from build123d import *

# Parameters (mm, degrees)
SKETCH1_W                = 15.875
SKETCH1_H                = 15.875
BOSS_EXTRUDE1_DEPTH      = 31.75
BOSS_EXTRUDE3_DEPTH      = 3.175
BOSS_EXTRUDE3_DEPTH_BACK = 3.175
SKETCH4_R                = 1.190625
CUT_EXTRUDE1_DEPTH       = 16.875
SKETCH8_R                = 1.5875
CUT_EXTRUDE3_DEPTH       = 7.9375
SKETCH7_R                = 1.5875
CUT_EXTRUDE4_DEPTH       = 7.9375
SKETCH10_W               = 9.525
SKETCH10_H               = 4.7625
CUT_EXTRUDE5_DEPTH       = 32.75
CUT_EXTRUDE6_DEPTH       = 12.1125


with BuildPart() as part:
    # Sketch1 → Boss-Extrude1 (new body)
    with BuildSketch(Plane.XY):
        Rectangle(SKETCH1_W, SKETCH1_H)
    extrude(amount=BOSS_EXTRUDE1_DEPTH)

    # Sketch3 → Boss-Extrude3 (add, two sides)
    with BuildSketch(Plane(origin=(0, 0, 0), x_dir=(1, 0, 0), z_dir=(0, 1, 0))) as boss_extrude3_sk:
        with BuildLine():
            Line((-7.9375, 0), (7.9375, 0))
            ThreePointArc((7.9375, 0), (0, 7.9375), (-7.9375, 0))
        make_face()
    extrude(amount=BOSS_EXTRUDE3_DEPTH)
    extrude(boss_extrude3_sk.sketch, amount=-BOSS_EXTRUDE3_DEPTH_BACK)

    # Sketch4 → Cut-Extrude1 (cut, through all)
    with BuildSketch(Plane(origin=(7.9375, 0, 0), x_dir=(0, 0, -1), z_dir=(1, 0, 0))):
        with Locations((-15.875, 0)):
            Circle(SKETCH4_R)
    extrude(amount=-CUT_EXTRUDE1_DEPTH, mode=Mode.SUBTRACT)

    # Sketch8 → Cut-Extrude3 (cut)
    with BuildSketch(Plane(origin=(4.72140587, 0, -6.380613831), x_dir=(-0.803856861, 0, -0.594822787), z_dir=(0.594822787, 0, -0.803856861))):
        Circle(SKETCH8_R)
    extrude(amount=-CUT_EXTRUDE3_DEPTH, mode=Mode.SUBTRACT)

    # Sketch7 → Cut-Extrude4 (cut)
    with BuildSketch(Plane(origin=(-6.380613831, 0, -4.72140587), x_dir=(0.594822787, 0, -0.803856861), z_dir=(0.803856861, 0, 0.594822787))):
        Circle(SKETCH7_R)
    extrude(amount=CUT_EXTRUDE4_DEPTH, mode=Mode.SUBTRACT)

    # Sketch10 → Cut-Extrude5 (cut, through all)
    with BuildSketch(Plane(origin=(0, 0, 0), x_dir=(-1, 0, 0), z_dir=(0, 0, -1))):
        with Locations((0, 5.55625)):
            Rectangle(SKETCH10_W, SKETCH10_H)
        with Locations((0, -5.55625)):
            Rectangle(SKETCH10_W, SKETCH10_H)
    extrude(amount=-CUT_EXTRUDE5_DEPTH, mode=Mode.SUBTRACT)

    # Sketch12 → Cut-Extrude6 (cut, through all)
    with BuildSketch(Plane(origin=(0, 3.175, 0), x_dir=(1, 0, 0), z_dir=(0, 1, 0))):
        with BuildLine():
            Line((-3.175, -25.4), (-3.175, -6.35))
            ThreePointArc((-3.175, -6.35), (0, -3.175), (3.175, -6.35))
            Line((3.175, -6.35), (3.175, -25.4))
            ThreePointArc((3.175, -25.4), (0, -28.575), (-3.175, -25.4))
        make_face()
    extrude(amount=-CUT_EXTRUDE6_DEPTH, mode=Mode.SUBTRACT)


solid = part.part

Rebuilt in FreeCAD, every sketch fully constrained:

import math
import FreeCAD as App
import Part
import Sketcher

V = App.Vector
Q = App.Units.Quantity


def add_polygon(sketch, points):
    """Adds a closed chain of lines whose ends are joined by coincident constraints."""
    first, n = sketch.GeometryCount, len(points)
    for a, b in zip(points, points[1:] + points[:1]):
        sketch.addGeometry(Part.LineSegment(App.Vector(*a, 0), App.Vector(*b, 0)), False)
    for i in range(n):
        sketch.addConstraint(Sketcher.Constraint("Coincident", first + i, 2, first + (i + 1) % n, 1))

doc = App.newDocument("Part")
body = doc.addObject("PartDesign::Body", "Body")

sketch1 = doc.addObject("Sketcher::SketchObject", "Sketch")
body.addObject(sketch1)
sketch1.AttachmentSupport = (doc.XY_Plane, [""])
sketch1.MapMode = "FlatFace"
add_polygon(sketch1, [(-8, 8), (-8, -8), (8, -8), (8, 8)])
sketch1.addConstraint([
    Sketcher.Constraint("Vertical", 0),
    Sketcher.Constraint("Horizontal", 1),
    Sketcher.Constraint("Vertical", 2),
    Sketcher.Constraint("Horizontal", 3),
    Sketcher.Constraint("Symmetric", 0, 2, 2, 2, -1, 1),
    Sketcher.Constraint("Equal", 3, 0),
    Sketcher.Constraint("DistanceX", 1, 1, 1, 2, Q("0.625 in")),
])
pad1 = doc.addObject("PartDesign::Pad", "Pad")
body.addObject(pad1)
pad1.Profile = sketch1
pad1.Length = Q("1.25 in")

sketch2 = doc.addObject("Sketcher::SketchObject", "Sketch001")
body.addObject(sketch2)
sketch2.AttachmentSupport = (doc.XZ_Plane, [""])
sketch2.MapMode = "FlatFace"
sketch2.addGeometry([
    Part.LineSegment(V(-8, 0, 0), V(8, 0, 0)),
    Part.ArcOfCircle(Part.Circle(V(0, 0, 0), V(0, 0, 1), 8), math.radians(180), math.radians(360)),
], False)
sketch2.addConstraint([
    Sketcher.Constraint("Coincident", 0, 1, 1, 1),
    Sketcher.Constraint("Coincident", 1, 2, 0, 2),
    Sketcher.Constraint("Horizontal", 0),
    Sketcher.Constraint("Coincident", 1, 3, -1, 1),
    Sketcher.Constraint("PointOnObject", 0, 1, -1),
    Sketcher.Constraint("Radius", 1, Q("0.3125 in")),
])
pad2 = doc.addObject("PartDesign::Pad", "Pad001")
body.addObject(pad2)
pad2.Profile = sketch2
pad2.Type = "TwoLengths"
pad2.Length = Q("0.125 in")
pad2.Length2 = Q("0.125 in")
pad2.Reversed = True

sketch3 = doc.addObject("Sketcher::SketchObject", "Sketch002")
body.addObject(sketch3)
sketch3.AttachmentSupport = (doc.YZ_Plane, [""])
sketch3.MapMode = "FlatFace"
sketch3.AttachmentOffset = App.Placement(V(0, 0, 0.3125 * 25.4), App.Rotation())
sketch3.addGeometry(Part.Circle(V(0, 15.9, 0), V(0, 0, 1), 1.2), False)
sketch3.addConstraint([
    Sketcher.Constraint("PointOnObject", 0, 3, -2),
    Sketcher.Constraint("Diameter", 0, Q("0.09375 in")),
    Sketcher.Constraint("DistanceY", -1, 1, 0, 3, Q("0.625 in")),
])
pocket1 = doc.addObject("PartDesign::Pocket", "Pocket")
body.addObject(pocket1)
pocket1.Profile = sketch3
pocket1.Type = "ThroughAll"

sketch4 = doc.addObject("Sketcher::SketchObject", "Sketch003")
body.addObject(sketch4)
sketch4.Placement = App.Placement(V(4.721406, 0, -6.380614), App.Rotation(V(-0.803856861, 0, -0.594822787), V(0, 1.000000001, 0), V(0.594822787, 0, -0.803856861), "ZXY"))
sketch4.addGeometry(Part.Circle(V(0, 0, 0), V(0, 0, 1), 1.6), False)
sketch4.addConstraint([
    Sketcher.Constraint("Coincident", 0, 3, -1, 1),
    Sketcher.Constraint("Diameter", 0, Q("0.125 in")),
])
pocket2 = doc.addObject("PartDesign::Pocket", "Pocket001")
body.addObject(pocket2)
pocket2.Profile = sketch4
pocket2.Length = Q("0.3125 in")

sketch5 = doc.addObject("Sketcher::SketchObject", "Sketch004")
body.addObject(sketch5)
sketch5.Placement = App.Placement(V(-6.380614, 0, -4.721406), App.Rotation(V(0.594822787, 0, -0.803856861), V(0, 1.000000001, 0), V(0.803856861, 0, 0.594822787), "ZXY"))
sketch5.addGeometry(Part.Circle(V(0, 0, 0), V(0, 0, 1), 1.6), False)
sketch5.addConstraint([
    Sketcher.Constraint("Coincident", 0, 3, -1, 1),
    Sketcher.Constraint("Diameter", 0, Q("0.125 in")),
])
pocket3 = doc.addObject("PartDesign::Pocket", "Pocket002")
body.addObject(pocket3)
pocket3.Profile = sketch5
pocket3.Length = Q("0.3125 in")
pocket3.Reversed = True

sketch6 = doc.addObject("Sketcher::SketchObject", "Sketch005")
body.addObject(sketch6)
sketch6.AttachmentSupport = (doc.XY_Plane, [""])
sketch6.MapMode = "FlatFace"
add_polygon(sketch6, [(4.8, 7.9), (4.8, 3.2), (-4.8, 3.2), (-4.8, 7.9)])
add_polygon(sketch6, [(4.8, -3.2), (4.8, -7.9), (-4.8, -7.9), (-4.8, -3.2)])
sketch6.addConstraint([
    Sketcher.Constraint("Vertical", 0),
    Sketcher.Constraint("Horizontal", 1),
    Sketcher.Constraint("Vertical", 2),
    Sketcher.Constraint("Horizontal", 3),
    Sketcher.Constraint("Vertical", 4),
    Sketcher.Constraint("Horizontal", 5),
    Sketcher.Constraint("Vertical", 6),
    Sketcher.Constraint("Horizontal", 7),
    Sketcher.Constraint("Symmetric", 2, 2, 4, 2, -1, 1),
    Sketcher.Constraint("Symmetric", 0, 2, 6, 2, -1, 1),
    Sketcher.Constraint("Vertical", 3, 2, 4, 2),
    Sketcher.Constraint("DistanceX", 1, 2, 1, 1, Q("0.375 in")),
    Sketcher.Constraint("DistanceY", 0, 2, 0, 1, Q("0.1875 in")),
    Sketcher.Constraint("DistanceY", 6, 2, 1, 2, Q("0.25 in")),
])
pocket4 = doc.addObject("PartDesign::Pocket", "Pocket003")
body.addObject(pocket4)
pocket4.Profile = sketch6
pocket4.Type = "ThroughAll"
pocket4.Reversed = True

sketch7 = doc.addObject("Sketcher::SketchObject", "Sketch006")
body.addObject(sketch7)
sketch7.AttachmentSupport = (doc.XZ_Plane, [""])
sketch7.MapMode = "FlatFace"
sketch7.AttachmentOffset = App.Placement(V(0, 0, -0.125 * 25.4), App.Rotation())
sketch7.addGeometry([
    Part.LineSegment(V(-3.2, 6.3, 0), V(-3.2, 25.4, 0)),
    Part.ArcOfCircle(Part.Circle(V(0, 25.4, 0), V(0, 0, 1), 3.2), math.radians(0), math.radians(180)),
    Part.LineSegment(V(3.2, 25.4, 0), V(3.2, 6.3, 0)),
    Part.ArcOfCircle(Part.Circle(V(0, 6.3, 0), V(0, 0, 1), 3.2), math.radians(180), math.radians(360)),
], False)
sketch7.addConstraint([
    Sketcher.Constraint("Tangent", 0, 2, 1, 2),
    Sketcher.Constraint("Tangent", 1, 1, 2, 1),
    Sketcher.Constraint("Tangent", 2, 2, 3, 2),
    Sketcher.Constraint("Tangent", 3, 1, 0, 1),
    Sketcher.Constraint("Vertical", 0),
    Sketcher.Constraint("Vertical", 2),
    Sketcher.Constraint("PointOnObject", 1, 3, -2),
    Sketcher.Constraint("DistanceY", -1, 1, 1, 3, Q("1 in")),
    Sketcher.Constraint("Radius", 1, Q("0.125 in")),
    Sketcher.Constraint("DistanceY", 0, 1, 0, 2, Q("0.75 in")),
])
pocket5 = doc.addObject("PartDesign::Pocket", "Pocket004")
body.addObject(pocket5)
pocket5.Profile = sketch7
pocket5.Type = "ThroughAll"
pocket5.Reversed = True

doc.recompute()
